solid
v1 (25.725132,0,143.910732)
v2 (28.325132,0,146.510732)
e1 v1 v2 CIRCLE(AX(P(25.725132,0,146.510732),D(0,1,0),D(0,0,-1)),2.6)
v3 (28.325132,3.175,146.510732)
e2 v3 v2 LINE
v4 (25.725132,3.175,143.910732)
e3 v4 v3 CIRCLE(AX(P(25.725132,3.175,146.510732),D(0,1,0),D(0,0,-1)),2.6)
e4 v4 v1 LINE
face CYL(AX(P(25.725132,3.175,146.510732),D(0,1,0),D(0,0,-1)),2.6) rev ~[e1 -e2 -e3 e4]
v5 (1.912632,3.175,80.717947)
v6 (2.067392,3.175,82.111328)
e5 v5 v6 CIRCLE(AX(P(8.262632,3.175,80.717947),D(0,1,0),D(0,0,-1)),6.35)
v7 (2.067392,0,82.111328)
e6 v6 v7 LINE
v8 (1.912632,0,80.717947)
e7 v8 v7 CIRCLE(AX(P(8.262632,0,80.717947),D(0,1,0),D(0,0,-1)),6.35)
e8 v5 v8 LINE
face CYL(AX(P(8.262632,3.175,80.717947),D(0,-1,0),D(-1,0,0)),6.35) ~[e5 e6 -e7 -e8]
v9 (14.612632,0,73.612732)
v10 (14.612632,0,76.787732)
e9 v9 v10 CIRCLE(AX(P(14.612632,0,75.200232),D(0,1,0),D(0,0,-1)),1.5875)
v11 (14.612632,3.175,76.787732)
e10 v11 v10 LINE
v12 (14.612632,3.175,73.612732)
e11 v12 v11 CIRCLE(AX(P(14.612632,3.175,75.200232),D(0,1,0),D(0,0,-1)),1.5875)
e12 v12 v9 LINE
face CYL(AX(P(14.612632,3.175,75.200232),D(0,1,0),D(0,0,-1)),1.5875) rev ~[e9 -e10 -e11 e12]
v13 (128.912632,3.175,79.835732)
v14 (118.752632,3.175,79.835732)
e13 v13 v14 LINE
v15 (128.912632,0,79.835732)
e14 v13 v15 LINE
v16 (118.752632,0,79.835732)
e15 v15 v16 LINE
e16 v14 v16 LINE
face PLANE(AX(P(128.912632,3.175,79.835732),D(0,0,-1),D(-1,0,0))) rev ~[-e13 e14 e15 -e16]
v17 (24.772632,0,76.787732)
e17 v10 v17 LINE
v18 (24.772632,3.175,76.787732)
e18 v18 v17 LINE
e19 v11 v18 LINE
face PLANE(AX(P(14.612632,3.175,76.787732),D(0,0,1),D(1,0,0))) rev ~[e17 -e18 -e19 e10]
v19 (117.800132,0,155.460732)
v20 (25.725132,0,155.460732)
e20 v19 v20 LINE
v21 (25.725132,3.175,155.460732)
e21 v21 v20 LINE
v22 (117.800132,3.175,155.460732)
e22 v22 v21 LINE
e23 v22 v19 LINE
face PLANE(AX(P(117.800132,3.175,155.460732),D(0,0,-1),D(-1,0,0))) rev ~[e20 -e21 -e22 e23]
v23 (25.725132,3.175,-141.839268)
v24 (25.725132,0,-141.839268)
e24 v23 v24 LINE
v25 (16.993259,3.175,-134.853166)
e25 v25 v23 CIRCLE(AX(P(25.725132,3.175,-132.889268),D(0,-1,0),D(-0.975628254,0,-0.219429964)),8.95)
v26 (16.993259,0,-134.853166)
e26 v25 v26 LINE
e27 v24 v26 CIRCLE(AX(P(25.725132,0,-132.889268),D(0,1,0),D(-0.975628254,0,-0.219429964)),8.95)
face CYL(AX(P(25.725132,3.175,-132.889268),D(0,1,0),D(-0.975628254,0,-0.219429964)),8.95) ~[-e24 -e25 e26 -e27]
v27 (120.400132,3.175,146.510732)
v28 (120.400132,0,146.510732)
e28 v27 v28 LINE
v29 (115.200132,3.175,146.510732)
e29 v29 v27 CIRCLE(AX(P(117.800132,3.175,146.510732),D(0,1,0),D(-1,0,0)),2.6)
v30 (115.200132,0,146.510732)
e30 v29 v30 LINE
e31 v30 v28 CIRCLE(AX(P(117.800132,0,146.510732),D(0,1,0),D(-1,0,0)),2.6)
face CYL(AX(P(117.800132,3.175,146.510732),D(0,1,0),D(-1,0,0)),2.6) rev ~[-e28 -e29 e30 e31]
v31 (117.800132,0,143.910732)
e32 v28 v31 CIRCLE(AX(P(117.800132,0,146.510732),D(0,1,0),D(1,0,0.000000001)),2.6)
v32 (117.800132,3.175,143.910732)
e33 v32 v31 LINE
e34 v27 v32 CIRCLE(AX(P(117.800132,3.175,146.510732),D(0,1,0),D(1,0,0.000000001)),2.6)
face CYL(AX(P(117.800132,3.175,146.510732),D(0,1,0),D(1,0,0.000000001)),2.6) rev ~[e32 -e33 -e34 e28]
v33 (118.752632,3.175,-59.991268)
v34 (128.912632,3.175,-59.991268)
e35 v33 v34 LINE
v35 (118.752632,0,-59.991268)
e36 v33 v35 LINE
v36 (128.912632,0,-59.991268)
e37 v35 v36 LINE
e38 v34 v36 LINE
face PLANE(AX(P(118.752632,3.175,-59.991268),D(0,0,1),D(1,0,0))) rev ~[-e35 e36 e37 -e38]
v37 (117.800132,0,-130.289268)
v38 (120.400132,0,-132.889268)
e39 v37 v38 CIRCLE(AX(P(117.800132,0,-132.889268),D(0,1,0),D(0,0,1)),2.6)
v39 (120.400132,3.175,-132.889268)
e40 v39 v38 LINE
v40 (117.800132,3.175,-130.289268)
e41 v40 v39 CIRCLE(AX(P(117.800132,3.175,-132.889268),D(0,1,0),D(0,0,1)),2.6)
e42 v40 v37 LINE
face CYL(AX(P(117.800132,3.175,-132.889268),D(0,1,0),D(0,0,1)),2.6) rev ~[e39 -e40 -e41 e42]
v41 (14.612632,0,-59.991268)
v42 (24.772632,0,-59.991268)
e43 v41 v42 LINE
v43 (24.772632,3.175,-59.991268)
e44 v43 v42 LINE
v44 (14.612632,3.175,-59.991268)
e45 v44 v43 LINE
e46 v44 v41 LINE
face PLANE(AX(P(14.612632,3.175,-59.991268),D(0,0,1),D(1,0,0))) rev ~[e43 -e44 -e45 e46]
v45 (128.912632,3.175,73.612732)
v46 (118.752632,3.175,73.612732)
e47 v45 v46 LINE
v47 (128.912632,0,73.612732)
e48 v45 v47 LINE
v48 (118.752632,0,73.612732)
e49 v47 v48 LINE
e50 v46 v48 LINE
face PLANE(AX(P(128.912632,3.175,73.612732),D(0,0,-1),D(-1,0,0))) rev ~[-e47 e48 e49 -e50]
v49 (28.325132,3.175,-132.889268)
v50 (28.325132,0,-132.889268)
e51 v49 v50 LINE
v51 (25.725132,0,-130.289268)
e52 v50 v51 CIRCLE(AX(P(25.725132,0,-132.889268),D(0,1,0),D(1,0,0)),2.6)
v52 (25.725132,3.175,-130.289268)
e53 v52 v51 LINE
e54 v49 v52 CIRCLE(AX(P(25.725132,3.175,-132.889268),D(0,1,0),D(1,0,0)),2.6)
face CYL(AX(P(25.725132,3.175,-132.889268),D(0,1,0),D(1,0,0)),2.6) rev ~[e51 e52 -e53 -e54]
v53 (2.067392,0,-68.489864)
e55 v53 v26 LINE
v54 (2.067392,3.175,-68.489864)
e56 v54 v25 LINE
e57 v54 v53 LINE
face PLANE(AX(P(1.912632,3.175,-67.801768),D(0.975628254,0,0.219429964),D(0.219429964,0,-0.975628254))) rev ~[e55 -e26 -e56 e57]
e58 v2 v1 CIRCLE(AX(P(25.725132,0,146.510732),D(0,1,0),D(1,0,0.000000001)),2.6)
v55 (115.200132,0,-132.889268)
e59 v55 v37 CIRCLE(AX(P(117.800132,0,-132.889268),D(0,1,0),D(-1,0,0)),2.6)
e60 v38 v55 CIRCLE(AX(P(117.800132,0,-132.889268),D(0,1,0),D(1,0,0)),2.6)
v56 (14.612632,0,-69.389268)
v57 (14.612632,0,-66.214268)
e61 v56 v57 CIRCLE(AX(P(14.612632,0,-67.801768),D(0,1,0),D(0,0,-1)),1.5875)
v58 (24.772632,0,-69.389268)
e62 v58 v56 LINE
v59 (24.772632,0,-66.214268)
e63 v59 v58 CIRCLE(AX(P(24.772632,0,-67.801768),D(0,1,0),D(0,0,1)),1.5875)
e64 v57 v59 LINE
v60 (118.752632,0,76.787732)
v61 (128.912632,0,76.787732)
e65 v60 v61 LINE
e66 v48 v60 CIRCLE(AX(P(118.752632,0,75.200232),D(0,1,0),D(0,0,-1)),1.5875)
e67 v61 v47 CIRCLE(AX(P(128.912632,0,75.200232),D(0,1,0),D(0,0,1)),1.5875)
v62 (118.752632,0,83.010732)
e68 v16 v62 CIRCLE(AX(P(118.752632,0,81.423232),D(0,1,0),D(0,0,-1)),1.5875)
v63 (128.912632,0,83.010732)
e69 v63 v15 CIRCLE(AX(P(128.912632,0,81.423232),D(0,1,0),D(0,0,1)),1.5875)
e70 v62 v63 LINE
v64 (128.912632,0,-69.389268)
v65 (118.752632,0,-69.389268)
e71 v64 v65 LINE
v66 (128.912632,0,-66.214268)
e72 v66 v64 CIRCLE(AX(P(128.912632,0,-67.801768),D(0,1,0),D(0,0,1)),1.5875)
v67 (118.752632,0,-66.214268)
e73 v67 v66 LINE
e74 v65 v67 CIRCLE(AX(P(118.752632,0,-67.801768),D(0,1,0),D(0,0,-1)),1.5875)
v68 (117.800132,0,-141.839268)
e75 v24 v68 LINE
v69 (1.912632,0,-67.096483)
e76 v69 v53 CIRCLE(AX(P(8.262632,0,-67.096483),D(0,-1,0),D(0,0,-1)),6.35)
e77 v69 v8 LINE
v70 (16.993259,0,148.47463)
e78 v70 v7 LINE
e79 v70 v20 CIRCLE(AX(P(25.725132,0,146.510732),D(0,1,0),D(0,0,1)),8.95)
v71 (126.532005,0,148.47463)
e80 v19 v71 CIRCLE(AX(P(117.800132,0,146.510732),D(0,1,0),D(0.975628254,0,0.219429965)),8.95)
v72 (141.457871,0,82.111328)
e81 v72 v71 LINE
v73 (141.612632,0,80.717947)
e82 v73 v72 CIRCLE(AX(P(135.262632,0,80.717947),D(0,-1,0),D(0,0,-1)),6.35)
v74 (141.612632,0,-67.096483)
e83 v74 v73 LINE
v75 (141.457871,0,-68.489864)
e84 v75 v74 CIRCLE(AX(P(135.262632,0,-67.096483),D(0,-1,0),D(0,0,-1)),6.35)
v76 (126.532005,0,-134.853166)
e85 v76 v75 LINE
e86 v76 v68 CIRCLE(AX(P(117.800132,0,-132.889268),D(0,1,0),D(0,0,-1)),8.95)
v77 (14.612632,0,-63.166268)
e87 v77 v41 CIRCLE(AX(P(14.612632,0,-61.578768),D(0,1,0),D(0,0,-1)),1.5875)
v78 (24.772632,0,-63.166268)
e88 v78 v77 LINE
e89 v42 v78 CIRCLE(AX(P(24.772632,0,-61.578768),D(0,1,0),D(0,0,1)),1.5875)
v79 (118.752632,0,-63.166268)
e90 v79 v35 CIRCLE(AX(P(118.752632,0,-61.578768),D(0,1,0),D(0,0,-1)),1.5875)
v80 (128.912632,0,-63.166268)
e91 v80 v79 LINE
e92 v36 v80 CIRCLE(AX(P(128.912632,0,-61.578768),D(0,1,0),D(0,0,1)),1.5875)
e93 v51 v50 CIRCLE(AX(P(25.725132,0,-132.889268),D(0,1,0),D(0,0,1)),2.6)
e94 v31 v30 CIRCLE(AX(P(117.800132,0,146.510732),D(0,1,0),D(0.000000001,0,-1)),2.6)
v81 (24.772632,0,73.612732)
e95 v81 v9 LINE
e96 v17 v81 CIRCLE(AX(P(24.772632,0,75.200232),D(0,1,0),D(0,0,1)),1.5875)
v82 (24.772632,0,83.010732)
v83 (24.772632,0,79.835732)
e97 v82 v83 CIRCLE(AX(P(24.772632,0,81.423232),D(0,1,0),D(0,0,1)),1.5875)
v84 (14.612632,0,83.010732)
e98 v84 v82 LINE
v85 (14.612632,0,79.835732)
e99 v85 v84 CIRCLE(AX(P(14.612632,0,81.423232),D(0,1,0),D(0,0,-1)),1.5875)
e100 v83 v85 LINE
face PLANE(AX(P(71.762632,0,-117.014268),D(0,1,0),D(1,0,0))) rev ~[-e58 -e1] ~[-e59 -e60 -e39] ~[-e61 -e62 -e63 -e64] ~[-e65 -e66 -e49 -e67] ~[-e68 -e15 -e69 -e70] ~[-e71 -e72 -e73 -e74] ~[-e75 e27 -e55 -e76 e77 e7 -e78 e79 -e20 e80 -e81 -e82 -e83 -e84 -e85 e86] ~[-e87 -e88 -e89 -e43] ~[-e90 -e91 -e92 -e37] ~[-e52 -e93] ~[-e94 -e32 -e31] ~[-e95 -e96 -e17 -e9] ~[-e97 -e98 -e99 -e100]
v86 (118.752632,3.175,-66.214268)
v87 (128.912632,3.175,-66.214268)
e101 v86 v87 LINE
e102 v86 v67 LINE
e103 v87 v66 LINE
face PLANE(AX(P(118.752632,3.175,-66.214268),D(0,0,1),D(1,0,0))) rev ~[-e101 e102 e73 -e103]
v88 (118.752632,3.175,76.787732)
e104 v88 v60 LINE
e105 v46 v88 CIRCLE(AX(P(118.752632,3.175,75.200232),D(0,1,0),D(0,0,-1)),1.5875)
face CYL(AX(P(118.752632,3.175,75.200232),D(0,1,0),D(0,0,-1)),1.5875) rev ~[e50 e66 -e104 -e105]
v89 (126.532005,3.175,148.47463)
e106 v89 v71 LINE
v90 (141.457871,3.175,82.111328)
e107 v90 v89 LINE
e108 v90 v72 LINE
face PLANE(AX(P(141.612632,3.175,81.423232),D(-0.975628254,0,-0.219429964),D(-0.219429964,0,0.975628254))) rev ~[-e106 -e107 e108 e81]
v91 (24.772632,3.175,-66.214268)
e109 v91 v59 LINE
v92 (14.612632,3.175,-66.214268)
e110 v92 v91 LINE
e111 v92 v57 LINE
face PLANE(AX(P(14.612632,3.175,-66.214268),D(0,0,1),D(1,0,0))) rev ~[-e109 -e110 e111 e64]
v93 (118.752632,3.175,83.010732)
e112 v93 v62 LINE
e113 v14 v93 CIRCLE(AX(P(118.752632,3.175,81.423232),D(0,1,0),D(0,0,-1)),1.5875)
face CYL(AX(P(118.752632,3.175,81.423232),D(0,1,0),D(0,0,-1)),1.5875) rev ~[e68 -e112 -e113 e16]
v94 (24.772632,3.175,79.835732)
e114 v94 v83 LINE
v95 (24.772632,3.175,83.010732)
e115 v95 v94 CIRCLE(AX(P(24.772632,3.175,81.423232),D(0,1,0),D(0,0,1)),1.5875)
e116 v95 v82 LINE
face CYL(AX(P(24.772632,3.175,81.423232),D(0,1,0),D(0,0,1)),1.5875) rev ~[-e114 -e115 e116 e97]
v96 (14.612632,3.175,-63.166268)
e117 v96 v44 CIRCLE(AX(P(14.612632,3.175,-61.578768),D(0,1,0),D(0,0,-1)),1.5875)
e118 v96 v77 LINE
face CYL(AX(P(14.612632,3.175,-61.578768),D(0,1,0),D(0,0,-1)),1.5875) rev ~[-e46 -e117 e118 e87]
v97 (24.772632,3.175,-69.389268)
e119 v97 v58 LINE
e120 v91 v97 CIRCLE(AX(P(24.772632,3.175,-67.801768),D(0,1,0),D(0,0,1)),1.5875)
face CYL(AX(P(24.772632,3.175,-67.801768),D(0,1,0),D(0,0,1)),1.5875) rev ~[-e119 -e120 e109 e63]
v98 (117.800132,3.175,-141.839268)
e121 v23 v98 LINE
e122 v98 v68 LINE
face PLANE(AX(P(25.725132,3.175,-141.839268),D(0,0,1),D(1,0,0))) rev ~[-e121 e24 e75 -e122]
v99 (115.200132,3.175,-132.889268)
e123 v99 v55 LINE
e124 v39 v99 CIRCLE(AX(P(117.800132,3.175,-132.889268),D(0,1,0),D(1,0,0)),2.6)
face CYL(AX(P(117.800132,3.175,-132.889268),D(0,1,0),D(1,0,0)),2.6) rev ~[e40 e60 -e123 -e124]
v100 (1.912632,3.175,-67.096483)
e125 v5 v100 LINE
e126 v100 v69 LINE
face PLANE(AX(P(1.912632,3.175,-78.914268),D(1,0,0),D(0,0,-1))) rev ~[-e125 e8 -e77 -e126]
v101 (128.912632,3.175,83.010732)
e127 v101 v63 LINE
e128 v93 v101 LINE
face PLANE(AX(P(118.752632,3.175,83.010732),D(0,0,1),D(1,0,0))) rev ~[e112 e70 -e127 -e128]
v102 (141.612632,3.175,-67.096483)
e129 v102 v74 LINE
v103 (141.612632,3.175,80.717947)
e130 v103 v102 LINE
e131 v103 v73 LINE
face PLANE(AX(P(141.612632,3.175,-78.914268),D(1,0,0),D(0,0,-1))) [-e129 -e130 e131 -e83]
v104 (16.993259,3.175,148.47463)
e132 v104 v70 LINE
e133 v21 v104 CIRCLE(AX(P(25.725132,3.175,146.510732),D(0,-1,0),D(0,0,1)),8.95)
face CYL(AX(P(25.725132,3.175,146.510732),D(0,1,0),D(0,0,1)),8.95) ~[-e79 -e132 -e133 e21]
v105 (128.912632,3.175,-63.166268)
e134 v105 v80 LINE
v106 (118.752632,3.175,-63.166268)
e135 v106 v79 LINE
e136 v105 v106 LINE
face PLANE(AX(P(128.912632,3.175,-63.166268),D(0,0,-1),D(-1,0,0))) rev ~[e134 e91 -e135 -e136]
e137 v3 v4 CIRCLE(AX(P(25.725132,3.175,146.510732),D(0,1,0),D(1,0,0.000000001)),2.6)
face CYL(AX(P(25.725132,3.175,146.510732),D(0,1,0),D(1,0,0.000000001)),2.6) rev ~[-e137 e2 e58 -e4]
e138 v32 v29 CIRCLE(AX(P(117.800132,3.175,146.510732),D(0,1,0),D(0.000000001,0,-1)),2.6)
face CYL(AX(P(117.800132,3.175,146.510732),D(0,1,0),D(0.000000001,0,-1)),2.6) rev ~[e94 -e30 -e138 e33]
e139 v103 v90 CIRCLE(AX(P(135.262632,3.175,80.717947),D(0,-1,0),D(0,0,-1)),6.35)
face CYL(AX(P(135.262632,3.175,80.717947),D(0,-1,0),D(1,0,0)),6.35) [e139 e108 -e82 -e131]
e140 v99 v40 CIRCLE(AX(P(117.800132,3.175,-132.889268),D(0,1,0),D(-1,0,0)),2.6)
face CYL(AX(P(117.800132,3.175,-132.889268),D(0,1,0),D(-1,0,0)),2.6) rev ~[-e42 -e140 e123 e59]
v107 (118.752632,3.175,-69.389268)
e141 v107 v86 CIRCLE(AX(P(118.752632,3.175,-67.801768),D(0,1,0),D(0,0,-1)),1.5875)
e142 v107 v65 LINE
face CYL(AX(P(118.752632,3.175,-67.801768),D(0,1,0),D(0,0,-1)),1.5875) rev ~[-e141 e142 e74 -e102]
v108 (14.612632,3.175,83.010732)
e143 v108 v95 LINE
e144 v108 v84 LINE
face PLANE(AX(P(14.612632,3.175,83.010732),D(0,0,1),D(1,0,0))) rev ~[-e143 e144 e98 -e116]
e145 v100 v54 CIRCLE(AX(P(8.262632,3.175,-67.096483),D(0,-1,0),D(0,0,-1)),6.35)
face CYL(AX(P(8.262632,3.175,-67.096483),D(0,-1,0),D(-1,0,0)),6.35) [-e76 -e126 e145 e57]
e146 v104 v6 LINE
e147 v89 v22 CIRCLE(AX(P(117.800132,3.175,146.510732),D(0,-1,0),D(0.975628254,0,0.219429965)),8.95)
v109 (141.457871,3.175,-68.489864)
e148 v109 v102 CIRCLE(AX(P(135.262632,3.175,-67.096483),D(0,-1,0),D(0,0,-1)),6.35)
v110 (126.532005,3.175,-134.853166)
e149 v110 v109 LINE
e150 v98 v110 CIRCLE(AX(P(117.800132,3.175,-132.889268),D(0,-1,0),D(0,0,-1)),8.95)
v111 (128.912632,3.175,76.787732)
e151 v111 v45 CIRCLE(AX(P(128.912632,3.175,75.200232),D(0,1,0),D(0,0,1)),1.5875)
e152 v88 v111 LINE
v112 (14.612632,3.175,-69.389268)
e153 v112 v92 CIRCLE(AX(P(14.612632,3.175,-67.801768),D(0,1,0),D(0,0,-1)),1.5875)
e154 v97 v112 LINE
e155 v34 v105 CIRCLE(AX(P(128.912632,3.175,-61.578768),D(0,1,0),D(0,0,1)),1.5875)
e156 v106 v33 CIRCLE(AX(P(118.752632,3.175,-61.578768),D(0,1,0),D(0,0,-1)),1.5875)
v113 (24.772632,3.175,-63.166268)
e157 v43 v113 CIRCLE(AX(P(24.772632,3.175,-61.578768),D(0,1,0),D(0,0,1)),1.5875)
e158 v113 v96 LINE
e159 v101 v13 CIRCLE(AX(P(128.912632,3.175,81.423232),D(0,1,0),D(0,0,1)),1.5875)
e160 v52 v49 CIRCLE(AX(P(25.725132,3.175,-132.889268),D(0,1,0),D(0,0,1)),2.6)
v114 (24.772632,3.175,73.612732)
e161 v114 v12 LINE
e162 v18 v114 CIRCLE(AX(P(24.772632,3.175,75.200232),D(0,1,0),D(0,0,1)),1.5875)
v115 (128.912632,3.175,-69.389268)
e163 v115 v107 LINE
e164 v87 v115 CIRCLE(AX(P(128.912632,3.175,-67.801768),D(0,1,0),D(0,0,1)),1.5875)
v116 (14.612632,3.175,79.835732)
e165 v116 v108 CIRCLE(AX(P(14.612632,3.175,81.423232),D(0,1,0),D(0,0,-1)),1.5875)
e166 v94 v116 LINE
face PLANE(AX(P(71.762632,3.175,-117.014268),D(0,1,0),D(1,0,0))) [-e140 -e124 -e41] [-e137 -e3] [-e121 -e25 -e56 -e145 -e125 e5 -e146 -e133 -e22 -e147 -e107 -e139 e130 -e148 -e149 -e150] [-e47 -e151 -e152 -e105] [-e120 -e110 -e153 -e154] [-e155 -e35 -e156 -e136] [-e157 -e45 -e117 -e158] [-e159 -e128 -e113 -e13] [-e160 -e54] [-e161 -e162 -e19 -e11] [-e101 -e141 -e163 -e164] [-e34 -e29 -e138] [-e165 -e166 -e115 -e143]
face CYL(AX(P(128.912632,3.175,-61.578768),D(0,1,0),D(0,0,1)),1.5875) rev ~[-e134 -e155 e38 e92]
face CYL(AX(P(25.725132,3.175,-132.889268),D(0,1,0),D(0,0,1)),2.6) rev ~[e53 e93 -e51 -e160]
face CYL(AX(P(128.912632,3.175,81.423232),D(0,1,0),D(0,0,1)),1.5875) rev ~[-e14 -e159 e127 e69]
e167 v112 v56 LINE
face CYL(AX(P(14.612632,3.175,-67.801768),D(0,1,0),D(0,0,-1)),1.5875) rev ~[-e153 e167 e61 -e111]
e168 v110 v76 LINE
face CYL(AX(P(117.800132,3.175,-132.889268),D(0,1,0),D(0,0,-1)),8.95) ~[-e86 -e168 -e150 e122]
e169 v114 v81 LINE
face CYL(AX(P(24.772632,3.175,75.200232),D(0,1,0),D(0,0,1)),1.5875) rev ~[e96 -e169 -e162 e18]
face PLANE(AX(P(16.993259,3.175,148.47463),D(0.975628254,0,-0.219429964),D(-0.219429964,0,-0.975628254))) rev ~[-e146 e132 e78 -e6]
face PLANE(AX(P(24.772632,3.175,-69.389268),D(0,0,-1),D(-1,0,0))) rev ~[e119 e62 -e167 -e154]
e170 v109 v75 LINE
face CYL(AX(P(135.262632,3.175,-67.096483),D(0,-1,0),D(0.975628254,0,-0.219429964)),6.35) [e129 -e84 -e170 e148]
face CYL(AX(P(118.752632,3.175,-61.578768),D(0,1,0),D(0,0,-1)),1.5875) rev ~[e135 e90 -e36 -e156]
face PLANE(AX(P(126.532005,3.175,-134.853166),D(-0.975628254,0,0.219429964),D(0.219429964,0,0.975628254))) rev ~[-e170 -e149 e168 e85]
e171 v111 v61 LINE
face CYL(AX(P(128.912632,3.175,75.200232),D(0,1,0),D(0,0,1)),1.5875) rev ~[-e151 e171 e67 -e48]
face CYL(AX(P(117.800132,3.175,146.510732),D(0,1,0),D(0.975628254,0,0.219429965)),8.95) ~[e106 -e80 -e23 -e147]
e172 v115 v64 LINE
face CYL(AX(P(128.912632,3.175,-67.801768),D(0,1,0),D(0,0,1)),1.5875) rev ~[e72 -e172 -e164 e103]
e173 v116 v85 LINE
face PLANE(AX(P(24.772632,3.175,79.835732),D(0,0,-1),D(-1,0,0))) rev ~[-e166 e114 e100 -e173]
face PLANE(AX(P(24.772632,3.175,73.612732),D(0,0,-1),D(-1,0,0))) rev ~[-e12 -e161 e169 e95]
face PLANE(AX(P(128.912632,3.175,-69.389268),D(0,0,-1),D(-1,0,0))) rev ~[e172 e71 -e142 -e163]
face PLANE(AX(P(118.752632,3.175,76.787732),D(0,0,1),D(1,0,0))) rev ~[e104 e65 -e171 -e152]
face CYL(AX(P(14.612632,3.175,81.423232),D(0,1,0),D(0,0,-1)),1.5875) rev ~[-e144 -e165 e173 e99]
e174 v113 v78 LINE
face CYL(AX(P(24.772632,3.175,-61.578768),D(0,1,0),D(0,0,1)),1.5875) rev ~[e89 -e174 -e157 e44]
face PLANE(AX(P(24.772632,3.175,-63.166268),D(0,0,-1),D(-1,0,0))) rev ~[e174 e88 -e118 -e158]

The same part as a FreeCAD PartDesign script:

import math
import FreeCAD as App
import Part
import Sketcher
Q = App.Units.Quantity


def edges_at(feature, points):
    """Names of the edges that pass closest to the given points."""
    edges = feature.Shape.Edges
    near = lambda p: min(range(len(edges)), key=lambda i: edges[i].distToShape(Part.Vertex(*p))[0])
    return sorted({f"Edge{near(p) + 1}" for p in points})

doc = App.newDocument("Part")
body = doc.addObject("PartDesign::Body", "Body")

# Sketch on XZ plane
sketch1 = doc.addObject("Sketcher::SketchObject", "Sketch")
body.addObject(sketch1)
sketch1.AttachmentSupport = (doc.XZ_Plane, [""])
sketch1.MapMode = "FlatFace"
sketch1.addGeometry(Part.LineSegment(App.Vector(-139.978961, -87.345869, 0), App.Vector(-139.978961, 95.867417, 0)), False)
sketch1.addGeometry(Part.LineSegment(App.Vector(-139.978961, 95.867417, 0), App.Vector(143.487834, 95.867417, 0)), False)
sketch1.addGeometry(Part.LineSegment(App.Vector(143.487834, 95.867417, 0), App.Vector(143.487834, -87.345869, 0)), False)
sketch1.addGeometry(Part.LineSegment(App.Vector(143.487834, -87.345869, 0), App.Vector(-139.978961, -87.345869, 0)), False)
sketch1.addConstraint(Sketcher.Constraint("Coincident", 0, 2, 1, 1))
sketch1.addConstraint(Sketcher.Constraint("Coincident", 1, 2, 2, 1))
sketch1.addConstraint(Sketcher.Constraint("Coincident", 2, 2, 3, 1))
sketch1.addConstraint(Sketcher.Constraint("Coincident", 3, 2, 0, 1))
sketch1.addConstraint(Sketcher.Constraint("Vertical", 0))
sketch1.addConstraint(Sketcher.Constraint("Horizontal", 1))
sketch1.addConstraint(Sketcher.Constraint("Vertical", 2))
sketch1.addConstraint(Sketcher.Constraint("Horizontal", 3))
sketch1.addConstraint(Sketcher.Constraint("DistanceX", 1, 1, 1, 2, 283.466795))
sketch1.addConstraint(Sketcher.Constraint("DistanceY", 0, 1, 0, 2, 183.213287))
sketch1.addConstraint(Sketcher.Constraint("DistanceX", 0, 2, -1, 1, 139.978961))
sketch1.addConstraint(Sketcher.Constraint("DistanceY", 2, 2, -1, 1, 87.345869))
pad1 = doc.addObject("PartDesign::Pad", "Pad")
body.addObject(pad1)
pad1.Profile = sketch1
pad1.Length = Q("0.125 in")
pad1.Reversed = True

# Sketch on XZ plane
sketch2 = doc.addObject("Sketcher::SketchObject", "Sketch001")
body.addObject(sketch2)
sketch2.AttachmentSupport = (doc.XZ_Plane, [""])
sketch2.MapMode = "FlatFace"
sketch2.AttachmentOffset = App.Placement(App.Vector(0, 0, -0.125 * 25.4), App.Rotation())
sketch2.addGeometry(Part.LineSegment(App.Vector(-139.978961, -87.345869, 0), App.Vector(-139.978961, 95.867417, 0)), False)
sketch2.addGeometry(Part.LineSegment(App.Vector(-139.978961, 95.867417, 0), App.Vector(143.487834, 95.867417, 0)), False)
sketch2.addGeometry(Part.LineSegment(App.Vector(143.487834, 95.867417, 0), App.Vector(143.487834, -87.345869, 0)), False)
sketch2.addGeometry(Part.LineSegment(App.Vector(143.487834, -87.345869, 0), App.Vector(-139.978961, -87.345869, 0)), False)
sketch2.addGeometry(Part.LineSegment(App.Vector(141.612632, 92.535732, 0), App.Vector(1.912632, 92.535732, 0)), False)
sketch2.addGeometry(Part.LineSegment(App.Vector(1.912632, 92.535732, 0), App.Vector(1.912632, -78.914268, 0)), False)
sketch2.addGeometry(Part.LineSegment(App.Vector(1.912632, -78.914268, 0), App.Vector(141.612632, -78.914268, 0)), False)
sketch2.addGeometry(Part.LineSegment(App.Vector(141.612632, -78.914268, 0), App.Vector(141.612632, 92.535732, 0)), False)
sketch2.addGeometry(Part.LineSegment(App.Vector(24.772632, -63.166268, 0), App.Vector(14.612632, -63.166268, 0)), False)
sketch2.addGeometry(Part.ArcOfCircle(Part.Circle(App.Vector(14.612632, -61.578768, 0), App.Vector(0, 0, 1), 1.5875), math.radians(90), math.radians(270)), False)
sketch2.addGeometry(Part.LineSegment(App.Vector(14.612632, -59.991268, 0), App.Vector(24.772632, -59.991268, 0)), False)
sketch2.addGeometry(Part.ArcOfCircle(Part.Circle(App.Vector(24.772632, -61.578768, 0), App.Vector(0, 0, 1), 1.5875), math.radians(-90), math.radians(90)), False)
sketch2.addGeometry(Part.ArcOfCircle(Part.Circle(App.Vector(14.612632, -67.801768, 0), App.Vector(0, 0, 1), 1.5875), math.radians(90), math.radians(270)), False)
sketch2.addGeometry(Part.LineSegment(App.Vector(14.612632, -66.214268, 0), App.Vector(24.772632, -66.214268, 0)), False)
sketch2.addGeometry(Part.ArcOfCircle(Part.Circle(App.Vector(24.772632, -67.801768, 0), App.Vector(0, 0, 1), 1.5875), math.radians(-90), math.radians(90)), False)
sketch2.addGeometry(Part.LineSegment(App.Vector(24.772632, -69.389268, 0), App.Vector(14.612632, -69.389268, 0)), False)
sketch2.addGeometry(Part.LineSegment(App.Vector(128.912632, -63.166268, 0), App.Vector(118.752632, -63.166268, 0)), False)
sketch2.addGeometry(Part.ArcOfCircle(Part.Circle(App.Vector(118.752632, -61.578768, 0), App.Vector(0, 0, 1), 1.5875), math.radians(90), math.radians(270)), False)
sketch2.addGeometry(Part.LineSegment(App.Vector(118.752632, -59.991268, 0), App.Vector(128.912632, -59.991268, 0)), False)
sketch2.addGeometry(Part.ArcOfCircle(Part.Circle(App.Vector(128.912632, -61.578768, 0), App.Vector(0, 0, 1), 1.5875), math.radians(-90), math.radians(90)), False)
sketch2.addGeometry(Part.ArcOfCircle(Part.Circle(App.Vector(118.752632, -67.801768, 0), App.Vector(0, 0, 1), 1.5875), math.radians(90), math.radians(270)), False)
sketch2.addGeometry(Part.LineSegment(App.Vector(118.752632, -66.214268, 0), App.Vector(128.912632, -66.214268, 0)), False)
sketch2.addGeometry(Part.ArcOfCircle(Part.Circle(App.Vector(128.912632, -67.801768, 0), App.Vector(0, 0, 1), 1.5875), math.radians(-90), math.radians(90)), False)
sketch2.addGeometry(Part.LineSegment(App.Vector(128.912632, -69.389268, 0), App.Vector(118.752632, -69.389268, 0)), False)
sketch2.addGeometry(Part.ArcOfCircle(Part.Circle(App.Vector(128.912632, 81.423232, 0), App.Vector(0, 0, 1), 1.5875), math.radians(-90), math.radians(90)), False)
sketch2.addGeometry(Part.LineSegment(App.Vector(128.912632, 79.835732, 0), App.Vector(118.752632, 79.835732, 0)), False)
sketch2.addGeometry(Part.ArcOfCircle(Part.Circle(App.Vector(118.752632, 81.423232, 0), App.Vector(0, 0, 1), 1.5875), math.radians(90), math.radians(270)), False)
sketch2.addGeometry(Part.LineSegment(App.Vector(118.752632, 83.010732, 0), App.Vector(128.912632, 83.010732, 0)), False)
sketch2.addGeometry(Part.ArcOfCircle(Part.Circle(App.Vector(128.912632, 75.200232, 0), App.Vector(0, 0, 1), 1.5875), math.radians(-90), math.radians(90)), False)
sketch2.addGeometry(Part.LineSegment(App.Vector(128.912632, 73.612732, 0), App.Vector(118.752632, 73.612732, 0)), False)
sketch2.addGeometry(Part.ArcOfCircle(Part.Circle(App.Vector(118.752632, 75.200232, 0), App.Vector(0, 0, 1), 1.5875), math.radians(90), math.radians(270)), False)
sketch2.addGeometry(Part.LineSegment(App.Vector(118.752632, 76.787732, 0), App.Vector(128.912632, 76.787732, 0)), False)
sketch2.addGeometry(Part.LineSegment(App.Vector(24.772632, 79.835732, 0), App.Vector(14.612632, 79.835732, 0)), False)
sketch2.addGeometry(Part.ArcOfCircle(Part.Circle(App.Vector(14.612632, 81.423232, 0), App.Vector(0, 0, 1), 1.5875), math.radians(90), math.radians(270)), False)
sketch2.addGeometry(Part.LineSegment(App.Vector(14.612632, 83.010732, 0), App.Vector(24.772632, 83.010732, 0)), False)
sketch2.addGeometry(Part.ArcOfCircle(Part.Circle(App.Vector(24.772632, 81.423232, 0), App.Vector(0, 0, 1), 1.5875), math.radians(-90), math.radians(90)), False)
sketch2.addGeometry(Part.LineSegment(App.Vector(24.772632, 73.612732, 0), App.Vector(14.612632, 73.612732, 0)), False)
sketch2.addGeometry(Part.ArcOfCircle(Part.Circle(App.Vector(14.612632, 75.200232, 0), App.Vector(0, 0, 1), 1.5875), math.radians(90), math.radians(270)), False)
sketch2.addGeometry(Part.LineSegment(App.Vector(14.612632, 76.787732, 0), App.Vector(24.772632, 76.787732, 0)), False)
sketch2.addGeometry(Part.ArcOfCircle(Part.Circle(App.Vector(24.772632, 75.200232, 0), App.Vector(0, 0, 1), 1.5875), math.radians(-90), math.radians(90)), False)
sketch2.addConstraint(Sketcher.Constraint("Coincident", 0, 2, 1, 1))
sketch2.addConstraint(Sketcher.Constraint("Coincident", 1, 2, 2, 1))
sketch2.addConstraint(Sketcher.Constraint("Coincident", 2, 2, 3, 1))
sketch2.addConstraint(Sketcher.Constraint("Coincident", 3, 2, 0, 1))
sketch2.addConstraint(Sketcher.Constraint("Coincident", 4, 2, 5, 1))
sketch2.addConstraint(Sketcher.Constraint("Coincident", 5, 2, 6, 1))
sketch2.addConstraint(Sketcher.Constraint("Coincident", 6, 2, 7, 1))
sketch2.addConstraint(Sketcher.Constraint("Coincident", 7, 2, 4, 1))
sketch2.addConstraint(Sketcher.Constraint("Tangent", 8, 2, 9, 2))
sketch2.addConstraint(Sketcher.Constraint("Tangent", 9, 1, 10, 1))
sketch2.addConstraint(Sketcher.Constraint("Tangent", 10, 2, 11, 2))
sketch2.addConstraint(Sketcher.Constraint("Tangent", 11, 1, 8, 1))
sketch2.addConstraint(Sketcher.Constraint("Tangent", 12, 1, 13, 1))
sketch2.addConstraint(Sketcher.Constraint("Tangent", 13, 2, 14, 2))
sketch2.addConstraint(Sketcher.Constraint("Tangent", 14, 1, 15, 1))
sketch2.addConstraint(Sketcher.Constraint("Tangent", 15, 2, 12, 2))
sketch2.addConstraint(Sketcher.Constraint("Tangent", 16, 2, 17, 2))
sketch2.addConstraint(Sketcher.Constraint("Tangent", 17, 1, 18, 1))
sketch2.addConstraint(Sketcher.Constraint("Tangent", 18, 2, 19, 2))
sketch2.addConstraint(Sketcher.Constraint("Tangent", 19, 1, 16, 1))
sketch2.addConstraint(Sketcher.Constraint("Tangent", 20, 1, 21, 1))
sketch2.addConstraint(Sketcher.Constraint("Tangent", 21, 2, 22, 2))
sketch2.addConstraint(Sketcher.Constraint("Tangent", 22, 1, 23, 1))
sketch2.addConstraint(Sketcher.Constraint("Tangent", 23, 2, 20, 2))
sketch2.addConstraint(Sketcher.Constraint("Tangent", 24, 1, 25, 1))
sketch2.addConstraint(Sketcher.Constraint("Tangent", 25, 2, 26, 2))
sketch2.addConstraint(Sketcher.Constraint("Tangent", 26, 1, 27, 1))
sketch2.addConstraint(Sketcher.Constraint("Tangent", 27, 2, 24, 2))
sketch2.addConstraint(Sketcher.Constraint("Tangent", 28, 1, 29, 1))
sketch2.addConstraint(Sketcher.Constraint("Tangent", 29, 2, 30, 2))
sketch2.addConstraint(Sketcher.Constraint("Tangent", 30, 1, 31, 1))
sketch2.addConstraint(Sketcher.Constraint("Tangent", 31, 2, 28, 2))
sketch2.addConstraint(Sketcher.Constraint("Tangent", 32, 2, 33, 2))
sketch2.addConstraint(Sketcher.Constraint("Tangent", 33, 1, 34, 1))
sketch2.addConstraint(Sketcher.Constraint("Tangent", 34, 2, 35, 2))
sketch2.addConstraint(Sketcher.Constraint("Tangent", 35, 1, 32, 1))
sketch2.addConstraint(Sketcher.Constraint("Tangent", 36, 2, 37, 2))
sketch2.addConstraint(Sketcher.Constraint("Tangent", 37, 1, 38, 1))
sketch2.addConstraint(Sketcher.Constraint("Tangent", 38, 2, 39, 2))
sketch2.addConstraint(Sketcher.Constraint("Tangent", 39, 1, 36, 1))
sketch2.addConstraint(Sketcher.Constraint("Vertical", 0))
sketch2.addConstraint(Sketcher.Constraint("Horizontal", 1))
sketch2.addConstraint(Sketcher.Constraint("Vertical", 2))
sketch2.addConstraint(Sketcher.Constraint("Horizontal", 3))
sketch2.addConstraint(Sketcher.Constraint("Horizontal", 4))
sketch2.addConstraint(Sketcher.Constraint("Vertical", 5))
sketch2.addConstraint(Sketcher.Constraint("Horizontal", 6))
sketch2.addConstraint(Sketcher.Constraint("Vertical", 7))
sketch2.addConstraint(Sketcher.Constraint("Horizontal", 8))
sketch2.addConstraint(Sketcher.Constraint("Horizontal", 10))
sketch2.addConstraint(Sketcher.Constraint("Horizontal", 13))
sketch2.addConstraint(Sketcher.Constraint("Horizontal", 15))
sketch2.addConstraint(Sketcher.Constraint("Horizontal", 16))
sketch2.addConstraint(Sketcher.Constraint("Horizontal", 18))
sketch2.addConstraint(Sketcher.Constraint("Horizontal", 21))
sketch2.addConstraint(Sketcher.Constraint("Horizontal", 23))
sketch2.addConstraint(Sketcher.Constraint("Horizontal", 25))
sketch2.addConstraint(Sketcher.Constraint("Horizontal", 27))
sketch2.addConstraint(Sketcher.Constraint("Horizontal", 29))
sketch2.addConstraint(Sketcher.Constraint("Horizontal", 31))
sketch2.addConstraint(Sketcher.Constraint("Horizontal", 32))
sketch2.addConstraint(Sketcher.Constraint("Horizontal", 34))
sketch2.addConstraint(Sketcher.Constraint("Horizontal", 36))
sketch2.addConstraint(Sketcher.Constraint("Horizontal", 38))
sketch2.addConstraint(Sketcher.Constraint("Equal", 11, 12))
sketch2.addConstraint(Sketcher.Constraint("Equal", 14, 17))
sketch2.addConstraint(Sketcher.Constraint("Equal", 19, 20))
sketch2.addConstraint(Sketcher.Constraint("Equal", 22, 24))
sketch2.addConstraint(Sketcher.Constraint("Equal", 26, 28))
sketch2.addConstraint(Sketcher.Constraint("Equal", 30, 33))
sketch2.addConstraint(Sketcher.Constraint("Equal", 35, 37))
sketch2.addConstraint(Sketcher.Constraint("Horizontal", 11, 3, 17, 3))
sketch2.addConstraint(Sketcher.Constraint("Horizontal", 14, 3, 20, 3))
sketch2.addConstraint(Sketcher.Constraint("Horizontal", 26, 3, 33, 3))
sketch2.addConstraint(Sketcher.Constraint("Horizontal", 30, 3, 37, 3))
sketch2.addConstraint(Sketcher.Constraint("Vertical", 9, 3, 12, 3))
sketch2.addConstraint(Sketcher.Constraint("Vertical", 11, 3, 14, 3))
sketch2.addConstraint(Sketcher.Constraint("Vertical", 17, 3, 20, 3))
sketch2.addConstraint(Sketcher.Constraint("Vertical", 19, 3, 22, 3))
sketch2.addConstraint(Sketcher.Constraint("Vertical", 22, 3, 24, 3))
sketch2.addConstraint(Sketcher.Constraint("Vertical", 20, 3, 26, 3))
sketch2.addConstraint(Sketcher.Constraint("Vertical", 24, 3, 28, 3))
sketch2.addConstraint(Sketcher.Constraint("Vertical", 26, 3, 30, 3))
sketch2.addConstraint(Sketcher.Constraint("Vertical", 12, 3, 33, 3))
sketch2.addConstraint(Sketcher.Constraint("Vertical", 14, 3, 35, 3))
sketch2.addConstraint(Sketcher.Constraint("Vertical", 33, 3, 37, 3))
sketch2.addConstraint(Sketcher.Constraint("Vertical", 35, 3, 39, 3))
sketch2.addConstraint(Sketcher.Constraint("Equal", 15, 16))
sketch2.addConstraint(Sketcher.Constraint("DistanceX", 4, 2, 4, 1, Q("5.5 in")))
sketch2.addConstraint(Sketcher.Constraint("DistanceX", 8, 2, 8, 1, Q("0.4 in")))
sketch2.addConstraint(Sketcher.Constraint("Radius", 9, Q("0.0625 in")))
sketch2.addConstraint(Sketcher.Constraint("DistanceY", 5, 2, 5, 1, Q("6.75 in")))
sketch2.addConstraint(Sketcher.Constraint("DistanceX", 11, 3, 17, 3, Q("3.7 in")))
sketch2.addConstraint(Sketcher.Constraint("DistanceX", 4, 2, 33, 3, Q("0.5 in")))
sketch2.addConstraint(Sketcher.Constraint("DistanceY", 24, 1, 7, 2, Q("0.5 in")))
sketch2.addConstraint(Sketcher.Constraint("DistanceY", 19, 3, 24, 3, Q("5.63 in")))
sketch2.addConstraint(Sketcher.Constraint("DistanceY", 22, 3, 28, 3, Q("5.63 in")))
sketch2.addConstraint(Sketcher.Constraint("DistanceY", 12, 1, 8, 2, Q("0.12 in")))
sketch2.addConstraint(Sketcher.Constraint("DistanceY", 2, 2, 22, 3, 19.544101))
sketch2.addConstraint(Sketcher.Constraint("DistanceX", 1, 1, 1, 2, 283.466795))
sketch2.addConstraint(Sketcher.Constraint("DistanceY", 0, 1, 0, 2, 183.213287))
sketch2.addConstraint(Sketcher.Constraint("DistanceX", -1, 1, 9, 3, 14.612632))
sketch2.addConstraint(Sketcher.Constraint("DistanceY", 9, 3, -1, 1, 61.578768))
sketch2.addConstraint(Sketcher.Constraint("DistanceX", 0, 2, -1, 1, 139.978961))
pocket1 = doc.addObject("PartDesign::Pocket", "Pocket")
body.addObject(pocket1)
pocket1.Profile = sketch2
pocket1.Type = "ThroughAll"
pocket1.Reversed = True

# Sketch on XZ plane
sketch3 = doc.addObject("Sketcher::SketchObject", "Sketch002")
body.addObject(sketch3)
sketch3.AttachmentSupport = (doc.XZ_Plane, [""])
sketch3.MapMode = "FlatFace"
sketch3.AttachmentOffset = App.Placement(App.Vector(0, 0, -0.125 * 25.4), App.Rotation())
sketch3.addGeometry(Part.LineSegment(App.Vector(1.912632, -155.114268, 0), App.Vector(1.912632, -78.914268, 0)), False)
sketch3.addGeometry(Part.LineSegment(App.Vector(1.912632, -78.914268, 0), App.Vector(141.612632, -78.914268, 0)), False)
sketch3.addGeometry(Part.LineSegment(App.Vector(141.612632, -78.914268, 0), App.Vector(141.612632, -155.114268, 0)), False)
sketch3.addGeometry(Part.LineSegment(App.Vector(141.612632, -155.114268, 0), App.Vector(1.912632, -155.114268, 0)), False)
sketch3.addGeometry(Part.LineSegment(App.Vector(1.912632, 92.535732, 0), App.Vector(1.912632, 168.735732, 0)), False)
sketch3.addGeometry(Part.LineSegment(App.Vector(1.912632, 168.735732, 0), App.Vector(141.612632, 168.735732, 0)), False)
sketch3.addGeometry(Part.LineSegment(App.Vector(141.612632, 168.735732, 0), App.Vector(141.612632, 92.535732, 0)), False)
sketch3.addGeometry(Part.LineSegment(App.Vector(141.612632, 92.535732, 0), App.Vector(1.912632, 92.535732, 0)), False)
sketch3.addConstraint(Sketcher.Constraint("Coincident", 0, 2, 1, 1))
sketch3.addConstraint(Sketcher.Constraint("Coincident", 1, 2, 2, 1))
sketch3.addConstraint(Sketcher.Constraint("Coincident", 2, 2, 3, 1))
sketch3.addConstraint(Sketcher.Constraint("Coincident", 3, 2, 0, 1))
sketch3.addConstraint(Sketcher.Constraint("Coincident", 4, 2, 5, 1))
sketch3.addConstraint(Sketcher.Constraint("Coincident", 5, 2, 6, 1))
sketch3.addConstraint(Sketcher.Constraint("Coincident", 6, 2, 7, 1))
sketch3.addConstraint(Sketcher.Constraint("Coincident", 7, 2, 4, 1))
sketch3.addConstraint(Sketcher.Constraint("Vertical", 0))
sketch3.addConstraint(Sketcher.Constraint("Horizontal", 1))
sketch3.addConstraint(Sketcher.Constraint("Vertical", 2))
sketch3.addConstraint(Sketcher.Constraint("Horizontal", 3))
sketch3.addConstraint(Sketcher.Constraint("Vertical", 4))
sketch3.addConstraint(Sketcher.Constraint("Horizontal", 5))
sketch3.addConstraint(Sketcher.Constraint("Vertical", 6))
sketch3.addConstraint(Sketcher.Constraint("Horizontal", 7))
sketch3.addConstraint(Sketcher.Constraint("Vertical", 3, 2, 4, 2))
sketch3.addConstraint(Sketcher.Constraint("Vertical", 2, 2, 5, 2))
sketch3.addConstraint(Sketcher.Constraint("Equal", 2, 4))
sketch3.addConstraint(Sketcher.Constraint("DistanceY", 0, 1, 0, 2, Q("3 in")))
sketch3.addConstraint(Sketcher.Constraint("DistanceX", 1, 1, 1, 2, Q("5.5 in")))
sketch3.addConstraint(Sketcher.Constraint("DistanceY", 0, 2, 4, 2, Q("9.75 in")))
sketch3.addConstraint(Sketcher.Constraint("DistanceX", -1, 1, 0, 2, 1.912632))
sketch3.addConstraint(Sketcher.Constraint("DistanceY", 0, 2, -1, 1, 78.914268))
pad2 = doc.addObject("PartDesign::Pad", "Pad001")
body.addObject(pad2)
pad2.Profile = sketch3
pad2.Length = Q("0.125 in")

# Sketch on XZ plane
sketch4 = doc.addObject("Sketcher::SketchObject", "Sketch003")
body.addObject(sketch4)
sketch4.AttachmentSupport = (doc.XZ_Plane, [""])
sketch4.MapMode = "FlatFace"
sketch4.AttachmentOffset = App.Placement(App.Vector(0, 0, -0.125 * 25.4), App.Rotation())
sketch4.addGeometry(Part.ArcOfCircle(Part.Circle(App.Vector(25.725132, -132.889268, 0), App.Vector(0, 0, 1), 2.6), math.radians(90), math.radians(360)), False)
sketch4.addGeometry(Part.ArcOfCircle(Part.Circle(App.Vector(25.725132, -132.889268, 0), App.Vector(0, 0, 1), 2.6), math.radians(0), math.radians(90)), False)
sketch4.addGeometry(Part.ArcOfCircle(Part.Circle(App.Vector(117.800132, -132.889268, 0), App.Vector(0, 0, 1), 2.6), math.radians(90), math.radians(180)), False)
sketch4.addGeometry(Part.ArcOfCircle(Part.Circle(App.Vector(117.800132, -132.889268, 0), App.Vector(0, 0, 1), 2.6), math.radians(0), math.radians(90)), False)
sketch4.addGeometry(Part.ArcOfCircle(Part.Circle(App.Vector(117.800132, -132.889268, 0), App.Vector(0, 0, 1), 2.6), math.radians(180), math.radians(360)), False)
sketch4.addGeometry(Part.ArcOfCircle(Part.Circle(App.Vector(117.800132, 146.510732, 0), App.Vector(0, 0, 1), 2.6), math.radians(-90), math.radians(0)), False)
sketch4.addGeometry(Part.ArcOfCircle(Part.Circle(App.Vector(117.800132, 146.510732, 0), App.Vector(0, 0, 1), 2.6), math.radians(180), math.radians(270)), False)
sketch4.addGeometry(Part.ArcOfCircle(Part.Circle(App.Vector(117.800132, 146.510732, 0), App.Vector(0, 0, 1), 2.6), math.radians(0), math.radians(180)), False)
sketch4.addGeometry(Part.ArcOfCircle(Part.Circle(App.Vector(25.725132, 146.510732, 0), App.Vector(0, 0, 1), 2.6), math.radians(-90), math.radians(0)), False)
sketch4.addGeometry(Part.ArcOfCircle(Part.Circle(App.Vector(25.725132, 146.510732, 0), App.Vector(0, 0, 1), 2.6), math.radians(0), math.radians(270)), False)
sketch4.addConstraint(Sketcher.Constraint("Tangent", 0, 1, 1, 2))
sketch4.addConstraint(Sketcher.Constraint("Coincident", 1, 1, 0, 2))
sketch4.addConstraint(Sketcher.Constraint("Tangent", 2, 1, 3, 2))
sketch4.addConstraint(Sketcher.Constraint("Tangent", 3, 1, 4, 2))
sketch4.addConstraint(Sketcher.Constraint("Tangent", 4, 1, 2, 2))
sketch4.addConstraint(Sketcher.Constraint("Tangent", 5, 1, 6, 2))
sketch4.addConstraint(Sketcher.Constraint("Tangent", 6, 1, 7, 2))
sketch4.addConstraint(Sketcher.Constraint("Tangent", 7, 1, 5, 2))
sketch4.addConstraint(Sketcher.Constraint("Tangent", 8, 1, 9, 2))
sketch4.addConstraint(Sketcher.Constraint("Coincident", 9, 1, 8, 2))
sketch4.addConstraint(Sketcher.Constraint("Equal", 1, 2))
sketch4.addConstraint(Sketcher.Constraint("Equal", 4, 5))
sketch4.addConstraint(Sketcher.Constraint("Equal", 7, 8))
sketch4.addConstraint(Sketcher.Constraint("Horizontal", 1, 3, 2, 3))
sketch4.addConstraint(Sketcher.Constraint("Horizontal", 7, 3, 8, 3))
sketch4.addConstraint(Sketcher.Constraint("Horizontal", 4, 3, 1, 1))
sketch4.addConstraint(Sketcher.Constraint("Horizontal", 1, 1, 3, 1))
sketch4.addConstraint(Sketcher.Constraint("Horizontal", 3, 1, 4, 1))
sketch4.addConstraint(Sketcher.Constraint("Horizontal", 9, 3, 6, 1))
sketch4.addConstraint(Sketcher.Constraint("Horizontal", 6, 1, 7, 1))
sketch4.addConstraint(Sketcher.Constraint("Horizontal", 7, 1, 9, 1))
sketch4.addConstraint(Sketcher.Constraint("Vertical", 4, 3, 5, 3))
sketch4.addConstraint(Sketcher.Constraint("Vertical", 1, 3, 8, 3))
sketch4.addConstraint(Sketcher.Constraint("Vertical", 9, 3, 0, 1))
sketch4.addConstraint(Sketcher.Constraint("Vertical", 7, 3, 2, 1))
sketch4.addConstraint(Sketcher.Constraint("Vertical", 2, 1, 5, 1))
sketch4.addConstraint(Sketcher.Constraint("Vertical", 0, 1, 8, 1))
sketch4.addConstraint(Sketcher.Constraint("DistanceY", 2, 3, 5, 3, Q("11 in")))
sketch4.addConstraint(Sketcher.Constraint("Radius", 0, 2.6))
sketch4.addConstraint(Sketcher.Constraint("DistanceX", 0, 3, 2, 3, Q("3.625 in")))
sketch4.addConstraint(Sketcher.Constraint("DistanceX", -1, 1, 0, 3, 25.725132))
sketch4.addConstraint(Sketcher.Constraint("DistanceY", 0, 3, -1, 1, 132.889268))
pocket2 = doc.addObject("PartDesign::Pocket", "Pocket001")
body.addObject(pocket2)
pocket2.Profile = sketch4
pocket2.Type = "ThroughAll"
pocket2.Reversed = True

# Sketch on XZ plane
sketch5 = doc.addObject("Sketcher::SketchObject", "Sketch004")
body.addObject(sketch5)
sketch5.AttachmentSupport = (doc.XZ_Plane, [""])
sketch5.MapMode = "FlatFace"
sketch5.AttachmentOffset = App.Placement(App.Vector(0, 0, -0.125 * 25.4), App.Rotation())
sketch5.addGeometry(Part.LineSegment(App.Vector(1.912632, -67.801768, 0), App.Vector(16.993259, -134.853166, 0)), False)
sketch5.addGeometry(Part.ArcOfCircle(Part.Circle(App.Vector(25.725132, -132.889268, 0), App.Vector(0, 0, 1), 8.95), math.radians(-167.324446), math.radians(-90)), False)
sketch5.addGeometry(Part.LineSegment(App.Vector(25.725132, -141.839268, 0), App.Vector(117.800132, -141.839268, 0)), False)
sketch5.addGeometry(Part.ArcOfCircle(Part.Circle(App.Vector(117.800132, -132.889268, 0), App.Vector(0, 0, 1), 8.95), math.radians(-90), math.radians(-12.675554)), False)
sketch5.addGeometry(Part.LineSegment(App.Vector(126.532005, -134.853166, 0), App.Vector(141.612632, -67.801768, 0)), False)
sketch5.addGeometry(Part.LineSegment(App.Vector(141.612632, -67.801768, 0), App.Vector(141.612632, -155.114268, 0)), False)
sketch5.addGeometry(Part.LineSegment(App.Vector(141.612632, -155.114268, 0), App.Vector(1.912632, -155.114268, 0)), False)
sketch5.addGeometry(Part.LineSegment(App.Vector(1.912632, -155.114268, 0), App.Vector(1.912632, -67.801768, 0)), False)
sketch5.addGeometry(Part.LineSegment(App.Vector(16.993259, 148.47463, 0), App.Vector(1.912632, 81.423232, 0)), False)
sketch5.addGeometry(Part.LineSegment(App.Vector(1.912632, 81.423232, 0), App.Vector(1.912632, 168.735732, 0)), False)
sketch5.addGeometry(Part.LineSegment(App.Vector(1.912632, 168.735732, 0), App.Vector(141.612632, 168.735732, 0)), False)
sketch5.addGeometry(Part.LineSegment(App.Vector(141.612632, 168.735732, 0), App.Vector(141.612632, 81.423232, 0)), False)
sketch5.addGeometry(Part.LineSegment(App.Vector(141.612632, 81.423232, 0), App.Vector(126.532005, 148.47463, 0)), False)
sketch5.addGeometry(Part.ArcOfCircle(Part.Circle(App.Vector(117.800132, 146.510732, 0), App.Vector(0, 0, 1), 8.95), math.radians(12.675554), math.radians(90)), False)
sketch5.addGeometry(Part.LineSegment(App.Vector(117.800132, 155.460732, 0), App.Vector(25.725132, 155.460732, 0)), False)
sketch5.addGeometry(Part.ArcOfCircle(Part.Circle(App.Vector(25.725132, 146.510732, 0), App.Vector(0, 0, 1), 8.95), math.radians(90), math.radians(167.324446)), False)
sketch5.addConstraint(Sketcher.Constraint("Tangent", 0, 2, 1, 1))
sketch5.addConstraint(Sketcher.Constraint("Tangent", 1, 2, 2, 1))
sketch5.addConstraint(Sketcher.Constraint("Tangent", 2, 2, 3, 1))
sketch5.addConstraint(Sketcher.Constraint("Tangent", 3, 2, 4, 1))
sketch5.addConstraint(Sketcher.Constraint("Coincident", 4, 2, 5, 1))
sketch5.addConstraint(Sketcher.Constraint("Coincident", 5, 2, 6, 1))
sketch5.addConstraint(Sketcher.Constraint("Coincident", 6, 2, 7, 1))
sketch5.addConstraint(Sketcher.Constraint("Coincident", 7, 2, 0, 1))
sketch5.addConstraint(Sketcher.Constraint("Coincident", 8, 2, 9, 1))
sketch5.addConstraint(Sketcher.Constraint("Coincident", 9, 2, 10, 1))
sketch5.addConstraint(Sketcher.Constraint("Coincident", 10, 2, 11, 1))
sketch5.addConstraint(Sketcher.Constraint("Coincident", 11, 2, 12, 1))
sketch5.addConstraint(Sketcher.Constraint("Tangent", 12, 2, 13, 1))
sketch5.addConstraint(Sketcher.Constraint("Tangent", 13, 2, 14, 1))
sketch5.addConstraint(Sketcher.Constraint("Tangent", 14, 2, 15, 1))
sketch5.addConstraint(Sketcher.Constraint("Tangent", 15, 2, 8, 1))
sketch5.addConstraint(Sketcher.Constraint("Horizontal", 2))
sketch5.addConstraint(Sketcher.Constraint("Vertical", 5))
sketch5.addConstraint(Sketcher.Constraint("Horizontal", 6))
sketch5.addConstraint(Sketcher.Constraint("Vertical", 7))
sketch5.addConstraint(Sketcher.Constraint("Vertical", 9))
sketch5.addConstraint(Sketcher.Constraint("Horizontal", 10))
sketch5.addConstraint(Sketcher.Constraint("Vertical", 11))
sketch5.addConstraint(Sketcher.Constraint("Horizontal", 14))
sketch5.addConstraint(Sketcher.Constraint("Equal", 1, 3))
sketch5.addConstraint(Sketcher.Constraint("Equal", 3, 13))
sketch5.addConstraint(Sketcher.Constraint("Equal", 13, 15))
sketch5.addConstraint(Sketcher.Constraint("Parallel", 4, 8))
sketch5.addConstraint(Sketcher.Constraint("Parallel", 0, 12))
sketch5.addConstraint(Sketcher.Constraint("Horizontal", 0, 2, 3, 2))
sketch5.addConstraint(Sketcher.Constraint("Horizontal", 4, 2, 7, 2))
sketch5.addConstraint(Sketcher.Constraint("Horizontal", 8, 2, 11, 2))
sketch5.addConstraint(Sketcher.Constraint("Vertical", 3, 3, 13, 3))
sketch5.addConstraint(Sketcher.Constraint("Vertical", 1, 3, 15, 3))
sketch5.addConstraint(Sketcher.Constraint("Vertical", 7, 2, 8, 2))
sketch5.addConstraint(Sketcher.Constraint("Equal", 7, 9))
sketch5.addConstraint(Sketcher.Constraint("DistanceX", 6, 2, 6, 1, Q("5.5 in")))
sketch5.addConstraint(Sketcher.Constraint("DistanceY", 3, 3, 13, 3, Q("11 in")))
sketch5.addConstraint(Sketcher.Constraint("DistanceX", 2, 1, 2, 2, Q("3.625 in")))
sketch5.addConstraint(Sketcher.Constraint("DistanceY", 5, 2, 5, 1, Q("3.4375 in")))
sketch5.addConstraint(Sketcher.Constraint("Radius", 1, 8.95))
sketch5.addConstraint(Sketcher.Constraint("DistanceY", 3, 3, 4, 2, Q("2.5625 in")))
sketch5.addConstraint(Sketcher.Constraint("DistanceX", -1, 1, 1, 3, 25.725132))
sketch5.addConstraint(Sketcher.Constraint("DistanceY", 1, 3, -1, 1, 132.889268))
pocket3 = doc.addObject("PartDesign::Pocket", "Pocket002")
body.addObject(pocket3)
pocket3.Profile = sketch5
pocket3.Type = "ThroughAll"
pocket3.Midplane = True
doc.recompute()

fillet = doc.addObject("PartDesign::Fillet", "Fillet")
body.addObject(fillet)
fillet.Base = (pocket3, edges_at(pocket3, [
    (1.913, 1.587, -67.802),
    (141.613, 1.587, -67.802),
    (141.613, 1.587, 81.423),
    (1.913, 1.587, 81.423),
]))
fillet.Radius = Q("0.25 in")

doc.recompute()
